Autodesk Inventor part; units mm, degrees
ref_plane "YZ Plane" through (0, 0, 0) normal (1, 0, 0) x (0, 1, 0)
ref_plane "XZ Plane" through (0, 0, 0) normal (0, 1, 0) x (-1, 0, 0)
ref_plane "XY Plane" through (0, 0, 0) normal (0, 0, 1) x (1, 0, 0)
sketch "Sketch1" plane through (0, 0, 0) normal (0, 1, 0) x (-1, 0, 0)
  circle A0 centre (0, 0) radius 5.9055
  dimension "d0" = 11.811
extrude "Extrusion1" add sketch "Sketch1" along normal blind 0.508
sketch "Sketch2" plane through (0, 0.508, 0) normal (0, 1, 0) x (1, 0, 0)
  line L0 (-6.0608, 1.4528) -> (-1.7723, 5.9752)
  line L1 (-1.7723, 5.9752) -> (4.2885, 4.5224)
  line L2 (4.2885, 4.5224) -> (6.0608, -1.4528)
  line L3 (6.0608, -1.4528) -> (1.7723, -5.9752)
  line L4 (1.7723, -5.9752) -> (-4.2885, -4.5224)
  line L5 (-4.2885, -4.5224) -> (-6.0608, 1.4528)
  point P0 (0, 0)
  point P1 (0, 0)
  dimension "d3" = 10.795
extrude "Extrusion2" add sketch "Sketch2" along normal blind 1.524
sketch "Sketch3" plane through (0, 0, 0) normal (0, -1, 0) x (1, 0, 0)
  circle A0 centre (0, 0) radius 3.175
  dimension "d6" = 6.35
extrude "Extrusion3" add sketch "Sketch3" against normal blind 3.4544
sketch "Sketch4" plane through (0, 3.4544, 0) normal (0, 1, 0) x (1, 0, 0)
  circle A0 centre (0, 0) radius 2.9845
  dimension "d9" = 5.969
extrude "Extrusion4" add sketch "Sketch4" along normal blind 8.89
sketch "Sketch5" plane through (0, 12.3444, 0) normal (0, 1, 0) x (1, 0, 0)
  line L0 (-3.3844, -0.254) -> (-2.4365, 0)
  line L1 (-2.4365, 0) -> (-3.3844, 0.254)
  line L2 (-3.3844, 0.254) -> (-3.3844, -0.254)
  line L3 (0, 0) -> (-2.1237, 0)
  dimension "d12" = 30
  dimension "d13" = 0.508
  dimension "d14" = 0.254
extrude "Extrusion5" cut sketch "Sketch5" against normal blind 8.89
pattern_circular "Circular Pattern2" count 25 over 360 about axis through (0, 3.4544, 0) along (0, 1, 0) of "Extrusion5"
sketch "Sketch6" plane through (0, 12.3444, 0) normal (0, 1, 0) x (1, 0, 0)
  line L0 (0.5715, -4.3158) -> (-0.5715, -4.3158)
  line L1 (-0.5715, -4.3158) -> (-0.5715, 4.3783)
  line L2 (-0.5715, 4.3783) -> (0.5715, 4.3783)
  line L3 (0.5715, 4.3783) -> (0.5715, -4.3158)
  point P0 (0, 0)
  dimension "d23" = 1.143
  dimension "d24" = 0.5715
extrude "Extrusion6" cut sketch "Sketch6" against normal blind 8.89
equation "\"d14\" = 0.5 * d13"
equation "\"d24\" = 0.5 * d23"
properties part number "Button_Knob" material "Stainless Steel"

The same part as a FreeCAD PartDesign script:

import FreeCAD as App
import Part
import Sketcher
Q = App.Units.Quantity


def add_polygon(sketch, points):
    """Adds a closed chain of lines whose ends are joined by coincident constraints."""
    first, n = sketch.GeometryCount, len(points)
    for a, b in zip(points, points[1:] + points[:1]):
        sketch.addGeometry(Part.LineSegment(App.Vector(*a, 0), App.Vector(*b, 0)), False)
    for i in range(n):
        sketch.addConstraint(Sketcher.Constraint("Coincident", first + i, 2, first + (i + 1) % n, 1))

doc = App.newDocument("Part")
body = doc.addObject("PartDesign::Body", "Body")

sketch1 = doc.addObject("Sketcher::SketchObject", "Sketch")
body.addObject(sketch1)
sketch1.AttachmentSupport = (doc.XZ_Plane, [""])
sketch1.MapMode = "FlatFace"
sketch1.addGeometry(Part.Circle(App.Vector(0, 0, 0), App.Vector(0, 0, 1), 6), False)
sketch1.addConstraint([
    Sketcher.Constraint("Coincident", 0, 3, -1, 1),
    Sketcher.Constraint("Diameter", 0, Q("0.465 in")),
])
pad1 = doc.addObject("PartDesign::Pad", "Pad")
body.addObject(pad1)
pad1.Profile = sketch1
pad1.Length = Q("0.02 in")
pad1.Reversed = True

sketch2 = doc.addObject("Sketcher::SketchObject", "Sketch001")
body.addObject(sketch2)
sketch2.AttachmentSupport = (doc.XZ_Plane, [""])
sketch2.MapMode = "FlatFace"
sketch2.AttachmentOffset = App.Placement(App.Vector(0, 0, -0.02 * 25.4), App.Rotation())
add_polygon(sketch2, [(-2, -6), (-6, -1), (-4, 5), (2, 6), (6, 1), (4, -5)])
sketch2.addConstraint([
    Sketcher.Constraint("Symmetric", 0, 2, 3, 2, -1, 1),
    Sketcher.Constraint("Symmetric", 1, 2, 4, 2, -1, 1),
    Sketcher.Constraint("Symmetric", 2, 2, 5, 2, -1, 1),
    Sketcher.Constraint("Equal", 0, 1),
    Sketcher.Constraint("Equal", 1, 2),
    Sketcher.Constraint("Angle", 0, Q("133.4793 deg")),
    Sketcher.Constraint("Angle", 1, Q("73.4792 deg")),
    Sketcher.Constraint("Angle", 2, Q("13.4797 deg")),
    Sketcher.Constraint("DistanceY", 0, 2, -1, 1, Q("0.0572 in")),
])
pad2 = doc.addObject("PartDesign::Pad", "Pad001")
body.addObject(pad2)
pad2.Profile = sketch2
pad2.Length = Q("0.06 in")
pad2.Reversed = True

sketch3 = doc.addObject("Sketcher::SketchObject", "Sketch002")
body.addObject(sketch3)
sketch3.AttachmentSupport = (doc.XZ_Plane, [""])
sketch3.MapMode = "FlatFace"
sketch3.addGeometry(Part.Circle(App.Vector(0, 0, 0), App.Vector(0, 0, 1), 3.2), False)
sketch3.addConstraint([
    Sketcher.Constraint("Coincident", 0, 3, -1, 1),
    Sketcher.Constraint("Diameter", 0, Q("0.25 in")),
])
pad3 = doc.addObject("PartDesign::Pad", "Pad002")
body.addObject(pad3)
pad3.Profile = sketch3
pad3.Length = Q("0.136 in")
pad3.Reversed = True

sketch4 = doc.addObject("Sketcher::SketchObject", "Sketch003")
body.addObject(sketch4)
sketch4.AttachmentSupport = (doc.XZ_Plane, [""])
sketch4.MapMode = "FlatFace"
sketch4.AttachmentOffset = App.Placement(App.Vector(0, 0, -0.136 * 25.4), App.Rotation())
sketch4.addGeometry(Part.Circle(App.Vector(0, 0, 0), App.Vector(0, 0, 1), 3), False)
sketch4.addConstraint([
    Sketcher.Constraint("Coincident", 0, 3, -1, 1),
    Sketcher.Constraint("Diameter", 0, Q("0.235 in")),
])
pad4 = doc.addObject("PartDesign::Pad", "Pad003")
body.addObject(pad4)
pad4.Profile = sketch4
pad4.Length = Q("0.35 in")
pad4.Reversed = True

sketch5 = doc.addObject("Sketcher::SketchObject", "Sketch004")
body.addObject(sketch5)
sketch5.AttachmentSupport = (doc.XZ_Plane, [""])
sketch5.MapMode = "FlatFace"
sketch5.AttachmentOffset = App.Placement(App.Vector(0, 0, -0.486 * 25.4), App.Rotation())
add_polygon(sketch5, [(-3.4, -0.3), (-3.4, 0.3), (-2.4, 0)])
sketch5.addConstraint([
    Sketcher.Constraint("Vertical", 0),
    Sketcher.Constraint("PointOnObject", 1, 2, -1),
    Sketcher.Constraint("Equal", 1, 2),
    Sketcher.Constraint("DistanceY", 0, 1, 0, 2, Q("0.02 in")),
    Sketcher.Constraint("Angle", 1, Q("-15.0006 deg")),
    Sketcher.Constraint("DistanceX", 0, 2, -1, 1, Q("3.3844 mm")),
])
pocket1 = doc.addObject("PartDesign::Pocket", "Pocket")
body.addObject(pocket1)
pocket1.Profile = sketch5
pocket1.Length = Q("0.35 in")
pocket1.Reversed = True
doc.recompute()

polarpattern = doc.addObject("PartDesign::PolarPattern", "PolarPattern")
body.addObject(polarpattern)
polarpattern.Originals = [pocket1]
polarpattern.Axis = (doc.Y_Axis, [""])
polarpattern.Angle = 360
polarpattern.Occurrences = 25
body.Tip = polarpattern

sketch6 = doc.addObject("Sketcher::SketchObject", "Sketch005")
body.addObject(sketch6)
sketch6.AttachmentSupport = (doc.XZ_Plane, [""])
sketch6.MapMode = "FlatFace"
sketch6.AttachmentOffset = App.Placement(App.Vector(0, 0, -0.486 * 25.4), App.Rotation())
add_polygon(sketch6, [(-0.6, 4.3), (0.6, 4.3), (0.6, -4.4), (-0.6, -4.4)])
sketch6.addConstraint([
    Sketcher.Constraint("Horizontal", 0),
    Sketcher.Constraint("Vertical", 1),
    Sketcher.Constraint("Horizontal", 2),
    Sketcher.Constraint("Vertical", 3),
    Sketcher.Constraint("DistanceX", 0, 1, 0, 2, Q("0.045 in")),
    Sketcher.Constraint("DistanceX", -1, 1, 0, 2, Q("0.0225 in")),
    Sketcher.Constraint("DistanceY", 1, 2, 1, 1, Q("8.694 mm")),
    Sketcher.Constraint("DistanceY", -1, 1, 0, 2, Q("4.3158 mm")),
])
pocket2 = doc.addObject("PartDesign::Pocket", "Pocket001")
body.addObject(pocket2)
pocket2.Profile = sketch6
pocket2.Length = Q("0.35 in")
pocket2.Reversed = True

doc.recompute()
